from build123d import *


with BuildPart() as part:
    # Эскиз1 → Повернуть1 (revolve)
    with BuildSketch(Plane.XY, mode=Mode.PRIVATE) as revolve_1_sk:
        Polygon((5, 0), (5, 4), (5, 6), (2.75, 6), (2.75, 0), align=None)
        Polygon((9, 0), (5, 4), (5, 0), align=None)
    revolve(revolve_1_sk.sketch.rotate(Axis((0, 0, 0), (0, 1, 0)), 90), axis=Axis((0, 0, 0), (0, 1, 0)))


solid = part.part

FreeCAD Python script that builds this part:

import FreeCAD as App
import Part
import Sketcher
from FreeCAD import Vector
Q = App.Units.Quantity

doc = App.newDocument("Part")
body = doc.addObject("PartDesign::Body", "Body")

# Sketch on XY plane
sketch1 = body.newObject("Sketcher::SketchObject", "Sketch")
sketch1.AttachmentSupport = (doc.getObject("XY_Plane"), [""])
sketch1.MapMode = "FlatFace"
sketch1.addGeometry([
    Part.LineSegment(Vector(5, 4, 0), Vector(5, 6, 0)),  # 0
    Part.LineSegment(Vector(5, 6, 0), Vector(2.8, 6, 0)),  # 1
    Part.LineSegment(Vector(2.8, 6, 0), Vector(2.8, 0, 0)),  # 2
    Part.LineSegment(Vector(2.8, 0, 0), Vector(9, 0, 0)),  # 3
    Part.LineSegment(Vector(9, 0, 0), Vector(5, 4, 0)),  # 4
], False)
sketch1.addConstraint([
    Sketcher.Constraint("Coincident", 0, 2, 1, 1),
    Sketcher.Constraint("Coincident", 1, 2, 2, 1),
    Sketcher.Constraint("Coincident", 2, 2, 3, 1),
    Sketcher.Constraint("Coincident", 3, 2, 4, 1),
    Sketcher.Constraint("Coincident", 4, 2, 0, 1),
    Sketcher.Constraint("Vertical", 0),
    Sketcher.Constraint("Horizontal", 1),
    Sketcher.Constraint("Vertical", 2),
    Sketcher.Constraint("Horizontal", 3),
    Sketcher.Constraint("PointOnObject", 2, 2, -1),
    Sketcher.Constraint("DistanceY", 0, 1, 0, 2, 2.0),
    Sketcher.Constraint("DistanceY", 2, 2, 2, 1, 6.0),
    Sketcher.Constraint("Angle", 4, Q("135 deg")),
    Sketcher.Constraint("DistanceX", -1, 1, 0, 2, 5.0),
    Sketcher.Constraint("DistanceX", 1, 2, 1, 1, 2.25),
])
revolution = body.newObject("PartDesign::Revolution", "Revolution")
revolution.Profile = sketch1
revolution.ReferenceAxis = (sketch1, ["V_Axis"])
revolution.Angle = 360

doc.recompute()
